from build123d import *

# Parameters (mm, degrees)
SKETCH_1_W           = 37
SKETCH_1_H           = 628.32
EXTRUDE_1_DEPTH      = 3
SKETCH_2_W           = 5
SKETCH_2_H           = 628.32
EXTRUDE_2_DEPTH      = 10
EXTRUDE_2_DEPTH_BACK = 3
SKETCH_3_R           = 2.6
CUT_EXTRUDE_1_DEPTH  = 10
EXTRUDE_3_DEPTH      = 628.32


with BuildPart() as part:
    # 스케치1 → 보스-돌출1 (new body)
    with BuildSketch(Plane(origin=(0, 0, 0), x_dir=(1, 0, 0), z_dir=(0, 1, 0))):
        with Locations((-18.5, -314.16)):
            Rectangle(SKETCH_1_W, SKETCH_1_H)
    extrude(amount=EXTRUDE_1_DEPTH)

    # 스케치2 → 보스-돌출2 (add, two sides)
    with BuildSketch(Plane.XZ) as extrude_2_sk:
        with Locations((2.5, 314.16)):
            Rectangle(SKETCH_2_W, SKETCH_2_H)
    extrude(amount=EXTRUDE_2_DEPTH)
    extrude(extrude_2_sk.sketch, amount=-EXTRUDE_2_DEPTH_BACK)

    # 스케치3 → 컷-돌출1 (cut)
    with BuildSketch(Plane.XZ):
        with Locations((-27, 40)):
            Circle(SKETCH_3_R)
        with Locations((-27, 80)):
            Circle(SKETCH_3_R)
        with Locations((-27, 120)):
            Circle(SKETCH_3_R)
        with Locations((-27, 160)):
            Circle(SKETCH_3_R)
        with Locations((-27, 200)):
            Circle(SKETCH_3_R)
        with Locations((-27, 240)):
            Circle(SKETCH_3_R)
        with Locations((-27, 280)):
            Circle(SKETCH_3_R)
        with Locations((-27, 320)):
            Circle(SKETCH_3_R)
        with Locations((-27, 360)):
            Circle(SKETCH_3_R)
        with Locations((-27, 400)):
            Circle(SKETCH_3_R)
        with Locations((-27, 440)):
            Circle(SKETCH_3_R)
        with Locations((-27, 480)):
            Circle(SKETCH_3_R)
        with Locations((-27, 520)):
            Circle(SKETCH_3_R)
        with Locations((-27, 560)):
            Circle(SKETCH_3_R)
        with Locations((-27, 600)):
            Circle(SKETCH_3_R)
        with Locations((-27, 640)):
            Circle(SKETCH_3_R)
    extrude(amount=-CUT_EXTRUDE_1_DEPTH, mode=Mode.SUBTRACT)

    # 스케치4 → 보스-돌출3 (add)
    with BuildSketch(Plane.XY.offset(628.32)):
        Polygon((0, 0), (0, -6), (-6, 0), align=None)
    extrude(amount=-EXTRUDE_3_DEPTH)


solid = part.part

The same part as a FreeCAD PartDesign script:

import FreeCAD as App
import Part
import Sketcher
Q = App.Units.Quantity

doc = App.newDocument("Part")
body = doc.addObject("PartDesign::Body", "Body")

sketch1 = body.newObject("Sketcher::SketchObject", "Sketch")
sketch1.AttachmentSupport = (doc.getObject("XZ_Plane"), [""])
sketch1.MapMode = "FlatFace"
sketch1.addGeometry([
    Part.LineSegment(App.Vector(-37, 0, 0), App.Vector(-37, 628, 0)),
    Part.LineSegment(App.Vector(-37, 628, 0), App.Vector(0, 628, 0)),
    Part.LineSegment(App.Vector(0, 628, 0), App.Vector(0, 0, 0)),
    Part.LineSegment(App.Vector(0, 0, 0), App.Vector(-37, 0, 0)),
], False)
sketch1.addConstraint([
    Sketcher.Constraint("Coincident", 0, 2, 1, 1),
    Sketcher.Constraint("Coincident", 1, 2, 2, 1),
    Sketcher.Constraint("Coincident", 2, 2, 3, 1),
    Sketcher.Constraint("Coincident", 3, 2, 0, 1),
    Sketcher.Constraint("Vertical", 0),
    Sketcher.Constraint("Horizontal", 1),
    Sketcher.Constraint("Vertical", 2),
    Sketcher.Constraint("Horizontal", 3),
    Sketcher.Constraint("Coincident", 2, 2, -1, 1),
    Sketcher.Constraint("DistanceX", 1, 1, 1, 2, Q("37 mm")),
    Sketcher.Constraint("DistanceY", 0, 1, 0, 2, Q("628.32 mm")),
])
pad1 = body.newObject("PartDesign::Pad", "Pad")
pad1.Profile = sketch1
pad1.Length = 3
pad1.Reversed = True

sketch2 = body.newObject("Sketcher::SketchObject", "Sketch001")
sketch2.AttachmentSupport = (doc.getObject("XZ_Plane"), [""])
sketch2.MapMode = "FlatFace"
sketch2.addGeometry([
    Part.LineSegment(App.Vector(0, 628, 0), App.Vector(0, 0, 0)),
    Part.LineSegment(App.Vector(0, 0, 0), App.Vector(5, 0, 0)),
    Part.LineSegment(App.Vector(5, 0, 0), App.Vector(5, 628, 0)),
    Part.LineSegment(App.Vector(5, 628, 0), App.Vector(0, 628, 0)),
], False)
sketch2.addConstraint([
    Sketcher.Constraint("Coincident", 0, 2, 1, 1),
    Sketcher.Constraint("Coincident", 1, 2, 2, 1),
    Sketcher.Constraint("Coincident", 2, 2, 3, 1),
    Sketcher.Constraint("Coincident", 3, 2, 0, 1),
    Sketcher.Constraint("Vertical", 0),
    Sketcher.Constraint("Horizontal", 1),
    Sketcher.Constraint("Vertical", 2),
    Sketcher.Constraint("Horizontal", 3),
    Sketcher.Constraint("Coincident", 0, 2, -1, 1),
    Sketcher.Constraint("DistanceX", 1, 1, 1, 2, Q("5 mm")),
    Sketcher.Constraint("DistanceY", 0, 2, 0, 1, Q("628.32 mm")),
])
pad2 = body.newObject("PartDesign::Pad", "Pad001")
pad2.Profile = sketch2
pad2.Type = "TwoLengths"
pad2.Length = 10
pad2.Length2 = 3

sketch3 = body.newObject("Sketcher::SketchObject", "Sketch002")
sketch3.AttachmentSupport = (doc.getObject("XZ_Plane"), [""])
sketch3.MapMode = "FlatFace"
sketch3.addGeometry([
    Part.Circle(App.Vector(-27, 40, 0), App.Vector(0, 0, 1), 2.6),
    Part.Circle(App.Vector(-27, 80, 0), App.Vector(0, 0, 1), 2.6),
    Part.Circle(App.Vector(-27, 120, 0), App.Vector(0, 0, 1), 2.6),
    Part.Circle(App.Vector(-27, 160, 0), App.Vector(0, 0, 1), 2.6),
    Part.Circle(App.Vector(-27, 200, 0), App.Vector(0, 0, 1), 2.6),
    Part.Circle(App.Vector(-27, 240, 0), App.Vector(0, 0, 1), 2.6),
    Part.Circle(App.Vector(-27, 280, 0), App.Vector(0, 0, 1), 2.6),
    Part.Circle(App.Vector(-27, 320, 0), App.Vector(0, 0, 1), 2.6),
    Part.Circle(App.Vector(-27, 360, 0), App.Vector(0, 0, 1), 2.6),
    Part.Circle(App.Vector(-27, 400, 0), App.Vector(0, 0, 1), 2.6),
    Part.Circle(App.Vector(-27, 440, 0), App.Vector(0, 0, 1), 2.6),
    Part.Circle(App.Vector(-27, 480, 0), App.Vector(0, 0, 1), 2.6),
    Part.Circle(App.Vector(-27, 520, 0), App.Vector(0, 0, 1), 2.6),
    Part.Circle(App.Vector(-27, 560, 0), App.Vector(0, 0, 1), 2.6),
    Part.Circle(App.Vector(-27, 600, 0), App.Vector(0, 0, 1), 2.6),
    Part.Circle(App.Vector(-27, 640, 0), App.Vector(0, 0, 1), 2.6),
], False)
sketch3.addConstraint([
    Sketcher.Constraint("Equal", 0, 1),
    Sketcher.Constraint("Equal", 1, 2),
    Sketcher.Constraint("Equal", 2, 3),
    Sketcher.Constraint("Equal", 3, 4),
    Sketcher.Constraint("Equal", 4, 5),
    Sketcher.Constraint("Equal", 5, 6),
    Sketcher.Constraint("Equal", 6, 7),
    Sketcher.Constraint("Equal", 7, 8),
    Sketcher.Constraint("Equal", 8, 9),
    Sketcher.Constraint("Equal", 9, 10),
    Sketcher.Constraint("Equal", 10, 11),
    Sketcher.Constraint("Equal", 11, 12),
    Sketcher.Constraint("Equal", 12, 13),
    Sketcher.Constraint("Equal", 13, 14),
    Sketcher.Constraint("Equal", 14, 15),
    Sketcher.Constraint("Vertical", 0, 3, 1, 3),
    Sketcher.Constraint("Vertical", 1, 3, 2, 3),
    Sketcher.Constraint("Vertical", 2, 3, 3, 3),
    Sketcher.Constraint("Vertical", 3, 3, 4, 3),
    Sketcher.Constraint("Vertical", 4, 3, 5, 3),
    Sketcher.Constraint("Vertical", 5, 3, 6, 3),
    Sketcher.Constraint("Vertical", 6, 3, 7, 3),
    Sketcher.Constraint("Vertical", 7, 3, 8, 3),
    Sketcher.Constraint("Vertical", 8, 3, 9, 3),
    Sketcher.Constraint("Vertical", 9, 3, 10, 3),
    Sketcher.Constraint("Vertical", 10, 3, 11, 3),
    Sketcher.Constraint("Vertical", 11, 3, 12, 3),
    Sketcher.Constraint("Vertical", 12, 3, 13, 3),
    Sketcher.Constraint("Vertical", 13, 3, 14, 3),
    Sketcher.Constraint("Vertical", 14, 3, 15, 3),
    Sketcher.Constraint("Diameter", 0, Q("5.2 mm")),
    Sketcher.Constraint("DistanceX", 0, 3, -1, 1, Q("27 mm")),
    Sketcher.Constraint("DistanceY", -1, 1, 0, 3, Q("40 mm")),
    Sketcher.Constraint("DistanceY", -1, 1, 1, 3, Q("80 mm")),
    Sketcher.Constraint("DistanceY", -1, 1, 2, 3, Q("120 mm")),
    Sketcher.Constraint("DistanceY", -1, 1, 3, 3, Q("160 mm")),
    Sketcher.Constraint("DistanceY", -1, 1, 4, 3, Q("200 mm")),
    Sketcher.Constraint("DistanceY", -1, 1, 5, 3, Q("240 mm")),
    Sketcher.Constraint("DistanceY", -1, 1, 6, 3, Q("280 mm")),
    Sketcher.Constraint("DistanceY", -1, 1, 7, 3, Q("320 mm")),
    Sketcher.Constraint("DistanceY", -1, 1, 8, 3, Q("360 mm")),
    Sketcher.Constraint("DistanceY", -1, 1, 9, 3, Q("400 mm")),
    Sketcher.Constraint("DistanceY", -1, 1, 10, 3, Q("440 mm")),
    Sketcher.Constraint("DistanceY", -1, 1, 11, 3, Q("480 mm")),
    Sketcher.Constraint("DistanceY", -1, 1, 12, 3, Q("520 mm")),
    Sketcher.Constraint("DistanceY", -1, 1, 13, 3, Q("560 mm")),
    Sketcher.Constraint("DistanceY", -1, 1, 14, 3, Q("600 mm")),
    Sketcher.Constraint("DistanceY", -1, 1, 15, 3, Q("640 mm")),
])
pocket1 = body.newObject("PartDesign::Pocket", "Pocket")
pocket1.Profile = sketch3
pocket1.Length = 10

sketch4 = body.newObject("Sketcher::SketchObject", "Sketch003")
sketch4.AttachmentSupport = (doc.getObject("XY_Plane"), [""])
sketch4.MapMode = "FlatFace"
sketch4.AttachmentOffset = App.Placement(App.Vector(0, 0, 628.32), App.Rotation())
sketch4.addGeometry([
    Part.LineSegment(App.Vector(0, -6, 0), App.Vector(0, 0, 0)),
    Part.LineSegment(App.Vector(0, 0, 0), App.Vector(-6, 0, 0)),
    Part.LineSegment(App.Vector(-6, 0, 0), App.Vector(0, -6, 0)),
], False)
sketch4.addConstraint([
    Sketcher.Constraint("Coincident", 0, 2, 1, 1),
    Sketcher.Constraint("Coincident", 1, 2, 2, 1),
    Sketcher.Constraint("Coincident", 2, 2, 0, 1),
    Sketcher.Constraint("Vertical", 0),
    Sketcher.Constraint("Horizontal", 1),
    Sketcher.Constraint("Coincident", 0, 2, -1, 1),
    Sketcher.Constraint("Equal", 1, 0),
    Sketcher.Constraint("DistanceX", 1, 2, 1, 1, Q("6 mm")),
])
pad3 = body.newObject("PartDesign::Pad", "Pad002")
pad3.Profile = sketch4
pad3.Length = 628.32
pad3.Reversed = True

doc.recompute()
